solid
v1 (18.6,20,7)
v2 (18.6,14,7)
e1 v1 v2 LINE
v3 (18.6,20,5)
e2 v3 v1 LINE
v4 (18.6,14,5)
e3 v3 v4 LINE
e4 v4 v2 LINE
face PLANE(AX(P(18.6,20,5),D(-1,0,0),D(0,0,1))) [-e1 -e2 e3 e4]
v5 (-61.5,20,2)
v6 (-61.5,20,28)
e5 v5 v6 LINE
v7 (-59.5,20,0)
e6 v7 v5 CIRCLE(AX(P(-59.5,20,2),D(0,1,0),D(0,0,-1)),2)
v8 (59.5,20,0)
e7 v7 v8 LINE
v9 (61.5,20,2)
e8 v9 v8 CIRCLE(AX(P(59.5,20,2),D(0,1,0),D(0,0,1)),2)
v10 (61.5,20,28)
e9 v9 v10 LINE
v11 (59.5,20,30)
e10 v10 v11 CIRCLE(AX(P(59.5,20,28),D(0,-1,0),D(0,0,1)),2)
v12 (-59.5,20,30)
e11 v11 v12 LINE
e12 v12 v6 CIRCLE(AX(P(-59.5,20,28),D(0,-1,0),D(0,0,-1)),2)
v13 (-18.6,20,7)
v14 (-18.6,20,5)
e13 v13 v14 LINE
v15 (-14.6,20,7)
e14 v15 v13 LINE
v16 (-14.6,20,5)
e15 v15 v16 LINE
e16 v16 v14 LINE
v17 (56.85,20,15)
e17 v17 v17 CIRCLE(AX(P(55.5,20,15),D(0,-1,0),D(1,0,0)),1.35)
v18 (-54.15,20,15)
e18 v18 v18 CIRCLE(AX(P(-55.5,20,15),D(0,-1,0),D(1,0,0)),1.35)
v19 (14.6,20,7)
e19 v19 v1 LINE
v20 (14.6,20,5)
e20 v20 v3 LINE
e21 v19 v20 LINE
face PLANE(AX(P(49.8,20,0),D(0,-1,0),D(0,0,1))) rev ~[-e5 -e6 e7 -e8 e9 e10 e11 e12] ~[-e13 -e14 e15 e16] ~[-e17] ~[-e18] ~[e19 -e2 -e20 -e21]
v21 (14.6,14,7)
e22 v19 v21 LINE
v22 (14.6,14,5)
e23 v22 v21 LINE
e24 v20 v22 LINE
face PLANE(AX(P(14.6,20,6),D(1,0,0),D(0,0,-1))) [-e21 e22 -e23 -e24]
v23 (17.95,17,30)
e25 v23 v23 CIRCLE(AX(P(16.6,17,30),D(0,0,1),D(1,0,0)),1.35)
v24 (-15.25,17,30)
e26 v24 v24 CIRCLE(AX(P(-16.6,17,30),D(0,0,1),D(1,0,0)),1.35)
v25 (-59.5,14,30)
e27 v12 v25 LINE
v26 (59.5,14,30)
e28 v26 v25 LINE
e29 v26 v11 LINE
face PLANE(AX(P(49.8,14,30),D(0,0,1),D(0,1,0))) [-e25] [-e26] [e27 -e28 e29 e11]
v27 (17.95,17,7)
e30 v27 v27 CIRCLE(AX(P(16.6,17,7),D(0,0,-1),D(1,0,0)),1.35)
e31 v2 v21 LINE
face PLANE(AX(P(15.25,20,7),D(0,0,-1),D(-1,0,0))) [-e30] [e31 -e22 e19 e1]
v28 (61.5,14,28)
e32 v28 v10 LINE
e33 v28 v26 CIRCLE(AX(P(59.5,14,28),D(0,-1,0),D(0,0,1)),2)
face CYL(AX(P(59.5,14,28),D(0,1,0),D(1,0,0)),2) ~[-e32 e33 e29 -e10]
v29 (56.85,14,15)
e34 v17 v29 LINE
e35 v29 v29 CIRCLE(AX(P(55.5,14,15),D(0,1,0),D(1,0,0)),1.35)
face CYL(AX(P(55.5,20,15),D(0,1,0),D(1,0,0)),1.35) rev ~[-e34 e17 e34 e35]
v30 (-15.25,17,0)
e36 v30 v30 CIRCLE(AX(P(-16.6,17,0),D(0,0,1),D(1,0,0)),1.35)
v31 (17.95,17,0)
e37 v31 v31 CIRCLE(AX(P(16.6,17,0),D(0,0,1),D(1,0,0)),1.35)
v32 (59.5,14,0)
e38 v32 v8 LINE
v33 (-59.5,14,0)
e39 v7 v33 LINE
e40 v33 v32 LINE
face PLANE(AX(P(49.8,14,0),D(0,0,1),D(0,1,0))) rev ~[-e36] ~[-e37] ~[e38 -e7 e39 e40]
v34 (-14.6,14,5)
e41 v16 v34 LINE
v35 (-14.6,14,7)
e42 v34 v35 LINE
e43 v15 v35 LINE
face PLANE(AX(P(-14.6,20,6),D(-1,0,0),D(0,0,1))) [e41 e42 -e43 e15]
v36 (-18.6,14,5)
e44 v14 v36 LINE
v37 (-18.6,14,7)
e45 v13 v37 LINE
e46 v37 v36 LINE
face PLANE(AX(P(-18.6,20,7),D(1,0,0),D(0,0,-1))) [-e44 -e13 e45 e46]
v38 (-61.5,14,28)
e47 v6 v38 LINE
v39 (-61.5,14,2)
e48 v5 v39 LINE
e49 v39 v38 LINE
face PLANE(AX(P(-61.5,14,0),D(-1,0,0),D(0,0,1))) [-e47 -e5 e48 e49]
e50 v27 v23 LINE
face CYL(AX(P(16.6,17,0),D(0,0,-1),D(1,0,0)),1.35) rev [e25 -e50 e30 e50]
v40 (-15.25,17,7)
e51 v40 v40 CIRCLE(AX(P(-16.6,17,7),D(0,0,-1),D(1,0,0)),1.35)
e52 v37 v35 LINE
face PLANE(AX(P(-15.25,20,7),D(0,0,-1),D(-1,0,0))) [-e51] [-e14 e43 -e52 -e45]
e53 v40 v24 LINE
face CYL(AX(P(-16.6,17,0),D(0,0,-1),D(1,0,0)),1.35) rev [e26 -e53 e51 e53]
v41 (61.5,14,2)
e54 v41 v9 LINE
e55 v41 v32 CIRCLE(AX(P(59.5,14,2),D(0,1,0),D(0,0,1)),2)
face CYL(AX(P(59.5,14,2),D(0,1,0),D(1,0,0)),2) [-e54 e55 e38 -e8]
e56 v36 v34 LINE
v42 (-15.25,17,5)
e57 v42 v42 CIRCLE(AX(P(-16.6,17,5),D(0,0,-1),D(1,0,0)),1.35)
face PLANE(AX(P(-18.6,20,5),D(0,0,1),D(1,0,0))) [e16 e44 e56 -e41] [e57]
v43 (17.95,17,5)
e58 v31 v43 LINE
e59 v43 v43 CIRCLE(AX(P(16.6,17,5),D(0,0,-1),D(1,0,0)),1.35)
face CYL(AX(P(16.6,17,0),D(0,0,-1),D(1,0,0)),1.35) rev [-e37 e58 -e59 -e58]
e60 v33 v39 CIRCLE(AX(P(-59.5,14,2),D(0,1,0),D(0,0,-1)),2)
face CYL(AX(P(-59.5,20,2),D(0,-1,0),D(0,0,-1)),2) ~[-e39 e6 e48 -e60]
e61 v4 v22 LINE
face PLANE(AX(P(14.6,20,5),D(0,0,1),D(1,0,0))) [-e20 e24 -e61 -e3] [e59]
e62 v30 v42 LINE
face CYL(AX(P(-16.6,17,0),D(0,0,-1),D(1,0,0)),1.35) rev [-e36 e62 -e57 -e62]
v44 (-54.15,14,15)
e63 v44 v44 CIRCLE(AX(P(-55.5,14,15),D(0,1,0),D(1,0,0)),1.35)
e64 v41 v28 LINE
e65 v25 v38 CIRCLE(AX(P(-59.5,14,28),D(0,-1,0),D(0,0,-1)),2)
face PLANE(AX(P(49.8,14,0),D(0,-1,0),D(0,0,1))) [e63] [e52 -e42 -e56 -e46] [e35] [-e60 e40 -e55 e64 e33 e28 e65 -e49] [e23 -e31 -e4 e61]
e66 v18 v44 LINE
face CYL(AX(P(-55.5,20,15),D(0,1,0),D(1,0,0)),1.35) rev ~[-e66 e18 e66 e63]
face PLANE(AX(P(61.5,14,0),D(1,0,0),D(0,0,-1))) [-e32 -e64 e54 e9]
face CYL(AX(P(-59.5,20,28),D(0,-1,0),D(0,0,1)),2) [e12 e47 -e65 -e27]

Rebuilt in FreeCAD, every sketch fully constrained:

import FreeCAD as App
import Part
import Sketcher
from FreeCAD import Vector


def edges_at(feature, points):
    """Names of the edges that pass closest to the given points."""
    edges = feature.Shape.Edges
    near = lambda p: min(range(len(edges)), key=lambda i: edges[i].distToShape(Part.Vertex(*p))[0])
    return sorted({f"Edge{near(p) + 1}" for p in points})


def add_polygon(sketch, points):
    """Adds a closed chain of lines whose ends are joined by coincident constraints."""
    first, n = sketch.GeometryCount, len(points)
    for a, b in zip(points, points[1:] + points[:1]):
        sketch.addGeometry(Part.LineSegment(App.Vector(*a, 0), App.Vector(*b, 0)), False)
    for i in range(n):
        sketch.addConstraint(Sketcher.Constraint("Coincident", first + i, 2, first + (i + 1) % n, 1))

doc = App.newDocument("Part")
body = doc.addObject("PartDesign::Body", "Body")

# Sketch on XY plane
sketch1 = body.newObject("Sketcher::SketchObject", "Sketch")
sketch1.AttachmentSupport = (doc.getObject("XY_Plane"), [""])
sketch1.MapMode = "FlatFace"
add_polygon(sketch1, [(-49.8, 20), (-49.8, 14), (49.8, 14), (49.8, 20)])  # lines 0-3
sketch1.addGeometry(Part.Circle(Vector(-16.6, 17, 0), Vector(0, 0, 1), 1.4), False)  # 4
sketch1.addGeometry(Part.Circle(Vector(16.6, 17, 0), Vector(0, 0, 1), 1.4), False)  # 5
sketch1.addConstraint([
    Sketcher.Constraint("Vertical", 0),
    Sketcher.Constraint("Horizontal", 1),
    Sketcher.Constraint("Vertical", 2),
    Sketcher.Constraint("Horizontal", 3),
    Sketcher.Constraint("Equal", 4, 5),
    Sketcher.Constraint("Symmetric", 4, 3, 5, 3, -2),
    Sketcher.Constraint("DistanceY", 0, 2, 0, 1, 6.0),
    Sketcher.Constraint("Diameter", 4, 2.7),
    Sketcher.Constraint("DistanceX", 1, 1, 1, 2, 99.6),
    Sketcher.Constraint("DistanceY", -1, 1, 4, 3, 17.0),
    Sketcher.Constraint("DistanceY", -1, 1, 0, 2, 14.0),
    Sketcher.Constraint("DistanceX", 4, 3, -1, 1, 16.6),
    Sketcher.Constraint("DistanceX", 0, 2, -1, 1, 49.8),
])
pad1 = body.newObject("PartDesign::Pad", "Pad")
pad1.Profile = sketch1
pad1.Length = 30

# Sketch on XZ plane
sketch2 = body.newObject("Sketcher::SketchObject", "Sketch001")
sketch2.AttachmentSupport = (doc.getObject("XZ_Plane"), [""])
sketch2.MapMode = "FlatFace"
sketch2.AttachmentOffset = App.Placement(Vector(0, 0, -20), App.Rotation())
add_polygon(sketch2, [(-14.6, 7), (-14.6, 5), (-18.6, 5), (-18.6, 7)])  # lines 0-3
add_polygon(sketch2, [(14.6, 5), (14.6, 7), (18.6, 7), (18.6, 5)])  # lines 4-7
sketch2.addConstraint([
    Sketcher.Constraint("Vertical", 0),
    Sketcher.Constraint("Horizontal", 1),
    Sketcher.Constraint("Vertical", 2),
    Sketcher.Constraint("Horizontal", 3),
    Sketcher.Constraint("Vertical", 4),
    Sketcher.Constraint("Horizontal", 5),
    Sketcher.Constraint("Vertical", 6),
    Sketcher.Constraint("Horizontal", 7),
    Sketcher.Constraint("Symmetric", 3, 2, 4, 2, -2),
    Sketcher.Constraint("Symmetric", 1, 2, 6, 2, -2),
    Sketcher.Constraint("DistanceX", 1, 2, 1, 1, 4.0),
    Sketcher.Constraint("DistanceY", 0, 2, 0, 1, 2.0),
    Sketcher.Constraint("DistanceY", -1, 1, 0, 2, 5.0),
    Sketcher.Constraint("DistanceX", 0, 2, -1, 1, 14.6),
])
pocket1 = body.newObject("PartDesign::Pocket", "Pocket")
pocket1.Profile = sketch2
pocket1.Length = 6
pocket1.Reversed = True

# Sketch on YZ plane
sketch3 = body.newObject("Sketcher::SketchObject", "Sketch002")
sketch3.AttachmentSupport = (doc.getObject("YZ_Plane"), [""])
sketch3.MapMode = "FlatFace"
sketch3.AttachmentOffset = App.Placement(Vector(0, 0, -49.8), App.Rotation())
add_polygon(sketch3, [(20, 30), (20, 0), (14, 0), (14, 30)])  # lines 0-3
sketch3.addConstraint([
    Sketcher.Constraint("Vertical", 0),
    Sketcher.Constraint("Horizontal", 1),
    Sketcher.Constraint("Vertical", 2),
    Sketcher.Constraint("Horizontal", 3),
    Sketcher.Constraint("PointOnObject", 0, 2, -1),
    Sketcher.Constraint("DistanceX", 1, 2, 1, 1, 6.0),
    Sketcher.Constraint("DistanceY", 0, 2, 0, 1, 30.0),
    Sketcher.Constraint("DistanceX", -1, 1, 0, 2, 20.0),
])
pad2 = body.newObject("PartDesign::Pad", "Pad001")
pad2.Profile = sketch3
pad2.Length = 11.7
pad2.Reversed = True

# Sketch on YZ plane
sketch4 = body.newObject("Sketcher::SketchObject", "Sketch003")
sketch4.AttachmentSupport = (doc.getObject("YZ_Plane"), [""])
sketch4.MapMode = "FlatFace"
sketch4.AttachmentOffset = App.Placement(Vector(0, 0, 49.8), App.Rotation())
add_polygon(sketch4, [(14, 30), (14, 0), (20, 0), (20, 30)])  # lines 0-3
sketch4.addConstraint([
    Sketcher.Constraint("Vertical", 0),
    Sketcher.Constraint("Horizontal", 1),
    Sketcher.Constraint("Vertical", 2),
    Sketcher.Constraint("Horizontal", 3),
    Sketcher.Constraint("PointOnObject", 0, 2, -1),
    Sketcher.Constraint("DistanceX", 1, 1, 1, 2, 6.0),
    Sketcher.Constraint("DistanceY", 0, 2, 0, 1, 30.0),
    Sketcher.Constraint("DistanceX", -1, 1, 0, 2, 14.0),
])
pad3 = body.newObject("PartDesign::Pad", "Pad002")
pad3.Profile = sketch4
pad3.Length = 11.7

# Sketch on XZ plane
sketch5 = body.newObject("Sketcher::SketchObject", "Sketch004")
sketch5.AttachmentSupport = (doc.getObject("XZ_Plane"), [""])
sketch5.MapMode = "FlatFace"
sketch5.AttachmentOffset = App.Placement(Vector(0, 0, -20), App.Rotation())
sketch5.addGeometry([
    Part.Circle(Vector(-55.5, 15, 0), Vector(0, 0, 1), 1.4),
    Part.Circle(Vector(55.5, 15, 0), Vector(0, 0, 1), 1.4),
], False)
sketch5.addConstraint([
    Sketcher.Constraint("Equal", 0, 1),
    Sketcher.Constraint("Symmetric", 0, 3, 1, 3, -2),
    Sketcher.Constraint("Diameter", 0, 2.7),
    Sketcher.Constraint("DistanceY", -1, 1, 0, 3, 15.0),
    Sketcher.Constraint("DistanceX", 0, 3, 1, 3, 111.0),
])
pocket2 = body.newObject("PartDesign::Pocket", "Pocket001")
pocket2.Profile = sketch5
pocket2.Length = 6
pocket2.Reversed = True
doc.recompute()

fillet = body.newObject("PartDesign::Fillet", "Fillet")
fillet.Base = (pocket2, edges_at(pocket2, [
    (61.5, 17, 30),
    (61.5, 17, 0),
    (-61.5, 17, 0),
    (-61.5, 17, 30),
]))
fillet.Radius = 2

doc.recompute()
